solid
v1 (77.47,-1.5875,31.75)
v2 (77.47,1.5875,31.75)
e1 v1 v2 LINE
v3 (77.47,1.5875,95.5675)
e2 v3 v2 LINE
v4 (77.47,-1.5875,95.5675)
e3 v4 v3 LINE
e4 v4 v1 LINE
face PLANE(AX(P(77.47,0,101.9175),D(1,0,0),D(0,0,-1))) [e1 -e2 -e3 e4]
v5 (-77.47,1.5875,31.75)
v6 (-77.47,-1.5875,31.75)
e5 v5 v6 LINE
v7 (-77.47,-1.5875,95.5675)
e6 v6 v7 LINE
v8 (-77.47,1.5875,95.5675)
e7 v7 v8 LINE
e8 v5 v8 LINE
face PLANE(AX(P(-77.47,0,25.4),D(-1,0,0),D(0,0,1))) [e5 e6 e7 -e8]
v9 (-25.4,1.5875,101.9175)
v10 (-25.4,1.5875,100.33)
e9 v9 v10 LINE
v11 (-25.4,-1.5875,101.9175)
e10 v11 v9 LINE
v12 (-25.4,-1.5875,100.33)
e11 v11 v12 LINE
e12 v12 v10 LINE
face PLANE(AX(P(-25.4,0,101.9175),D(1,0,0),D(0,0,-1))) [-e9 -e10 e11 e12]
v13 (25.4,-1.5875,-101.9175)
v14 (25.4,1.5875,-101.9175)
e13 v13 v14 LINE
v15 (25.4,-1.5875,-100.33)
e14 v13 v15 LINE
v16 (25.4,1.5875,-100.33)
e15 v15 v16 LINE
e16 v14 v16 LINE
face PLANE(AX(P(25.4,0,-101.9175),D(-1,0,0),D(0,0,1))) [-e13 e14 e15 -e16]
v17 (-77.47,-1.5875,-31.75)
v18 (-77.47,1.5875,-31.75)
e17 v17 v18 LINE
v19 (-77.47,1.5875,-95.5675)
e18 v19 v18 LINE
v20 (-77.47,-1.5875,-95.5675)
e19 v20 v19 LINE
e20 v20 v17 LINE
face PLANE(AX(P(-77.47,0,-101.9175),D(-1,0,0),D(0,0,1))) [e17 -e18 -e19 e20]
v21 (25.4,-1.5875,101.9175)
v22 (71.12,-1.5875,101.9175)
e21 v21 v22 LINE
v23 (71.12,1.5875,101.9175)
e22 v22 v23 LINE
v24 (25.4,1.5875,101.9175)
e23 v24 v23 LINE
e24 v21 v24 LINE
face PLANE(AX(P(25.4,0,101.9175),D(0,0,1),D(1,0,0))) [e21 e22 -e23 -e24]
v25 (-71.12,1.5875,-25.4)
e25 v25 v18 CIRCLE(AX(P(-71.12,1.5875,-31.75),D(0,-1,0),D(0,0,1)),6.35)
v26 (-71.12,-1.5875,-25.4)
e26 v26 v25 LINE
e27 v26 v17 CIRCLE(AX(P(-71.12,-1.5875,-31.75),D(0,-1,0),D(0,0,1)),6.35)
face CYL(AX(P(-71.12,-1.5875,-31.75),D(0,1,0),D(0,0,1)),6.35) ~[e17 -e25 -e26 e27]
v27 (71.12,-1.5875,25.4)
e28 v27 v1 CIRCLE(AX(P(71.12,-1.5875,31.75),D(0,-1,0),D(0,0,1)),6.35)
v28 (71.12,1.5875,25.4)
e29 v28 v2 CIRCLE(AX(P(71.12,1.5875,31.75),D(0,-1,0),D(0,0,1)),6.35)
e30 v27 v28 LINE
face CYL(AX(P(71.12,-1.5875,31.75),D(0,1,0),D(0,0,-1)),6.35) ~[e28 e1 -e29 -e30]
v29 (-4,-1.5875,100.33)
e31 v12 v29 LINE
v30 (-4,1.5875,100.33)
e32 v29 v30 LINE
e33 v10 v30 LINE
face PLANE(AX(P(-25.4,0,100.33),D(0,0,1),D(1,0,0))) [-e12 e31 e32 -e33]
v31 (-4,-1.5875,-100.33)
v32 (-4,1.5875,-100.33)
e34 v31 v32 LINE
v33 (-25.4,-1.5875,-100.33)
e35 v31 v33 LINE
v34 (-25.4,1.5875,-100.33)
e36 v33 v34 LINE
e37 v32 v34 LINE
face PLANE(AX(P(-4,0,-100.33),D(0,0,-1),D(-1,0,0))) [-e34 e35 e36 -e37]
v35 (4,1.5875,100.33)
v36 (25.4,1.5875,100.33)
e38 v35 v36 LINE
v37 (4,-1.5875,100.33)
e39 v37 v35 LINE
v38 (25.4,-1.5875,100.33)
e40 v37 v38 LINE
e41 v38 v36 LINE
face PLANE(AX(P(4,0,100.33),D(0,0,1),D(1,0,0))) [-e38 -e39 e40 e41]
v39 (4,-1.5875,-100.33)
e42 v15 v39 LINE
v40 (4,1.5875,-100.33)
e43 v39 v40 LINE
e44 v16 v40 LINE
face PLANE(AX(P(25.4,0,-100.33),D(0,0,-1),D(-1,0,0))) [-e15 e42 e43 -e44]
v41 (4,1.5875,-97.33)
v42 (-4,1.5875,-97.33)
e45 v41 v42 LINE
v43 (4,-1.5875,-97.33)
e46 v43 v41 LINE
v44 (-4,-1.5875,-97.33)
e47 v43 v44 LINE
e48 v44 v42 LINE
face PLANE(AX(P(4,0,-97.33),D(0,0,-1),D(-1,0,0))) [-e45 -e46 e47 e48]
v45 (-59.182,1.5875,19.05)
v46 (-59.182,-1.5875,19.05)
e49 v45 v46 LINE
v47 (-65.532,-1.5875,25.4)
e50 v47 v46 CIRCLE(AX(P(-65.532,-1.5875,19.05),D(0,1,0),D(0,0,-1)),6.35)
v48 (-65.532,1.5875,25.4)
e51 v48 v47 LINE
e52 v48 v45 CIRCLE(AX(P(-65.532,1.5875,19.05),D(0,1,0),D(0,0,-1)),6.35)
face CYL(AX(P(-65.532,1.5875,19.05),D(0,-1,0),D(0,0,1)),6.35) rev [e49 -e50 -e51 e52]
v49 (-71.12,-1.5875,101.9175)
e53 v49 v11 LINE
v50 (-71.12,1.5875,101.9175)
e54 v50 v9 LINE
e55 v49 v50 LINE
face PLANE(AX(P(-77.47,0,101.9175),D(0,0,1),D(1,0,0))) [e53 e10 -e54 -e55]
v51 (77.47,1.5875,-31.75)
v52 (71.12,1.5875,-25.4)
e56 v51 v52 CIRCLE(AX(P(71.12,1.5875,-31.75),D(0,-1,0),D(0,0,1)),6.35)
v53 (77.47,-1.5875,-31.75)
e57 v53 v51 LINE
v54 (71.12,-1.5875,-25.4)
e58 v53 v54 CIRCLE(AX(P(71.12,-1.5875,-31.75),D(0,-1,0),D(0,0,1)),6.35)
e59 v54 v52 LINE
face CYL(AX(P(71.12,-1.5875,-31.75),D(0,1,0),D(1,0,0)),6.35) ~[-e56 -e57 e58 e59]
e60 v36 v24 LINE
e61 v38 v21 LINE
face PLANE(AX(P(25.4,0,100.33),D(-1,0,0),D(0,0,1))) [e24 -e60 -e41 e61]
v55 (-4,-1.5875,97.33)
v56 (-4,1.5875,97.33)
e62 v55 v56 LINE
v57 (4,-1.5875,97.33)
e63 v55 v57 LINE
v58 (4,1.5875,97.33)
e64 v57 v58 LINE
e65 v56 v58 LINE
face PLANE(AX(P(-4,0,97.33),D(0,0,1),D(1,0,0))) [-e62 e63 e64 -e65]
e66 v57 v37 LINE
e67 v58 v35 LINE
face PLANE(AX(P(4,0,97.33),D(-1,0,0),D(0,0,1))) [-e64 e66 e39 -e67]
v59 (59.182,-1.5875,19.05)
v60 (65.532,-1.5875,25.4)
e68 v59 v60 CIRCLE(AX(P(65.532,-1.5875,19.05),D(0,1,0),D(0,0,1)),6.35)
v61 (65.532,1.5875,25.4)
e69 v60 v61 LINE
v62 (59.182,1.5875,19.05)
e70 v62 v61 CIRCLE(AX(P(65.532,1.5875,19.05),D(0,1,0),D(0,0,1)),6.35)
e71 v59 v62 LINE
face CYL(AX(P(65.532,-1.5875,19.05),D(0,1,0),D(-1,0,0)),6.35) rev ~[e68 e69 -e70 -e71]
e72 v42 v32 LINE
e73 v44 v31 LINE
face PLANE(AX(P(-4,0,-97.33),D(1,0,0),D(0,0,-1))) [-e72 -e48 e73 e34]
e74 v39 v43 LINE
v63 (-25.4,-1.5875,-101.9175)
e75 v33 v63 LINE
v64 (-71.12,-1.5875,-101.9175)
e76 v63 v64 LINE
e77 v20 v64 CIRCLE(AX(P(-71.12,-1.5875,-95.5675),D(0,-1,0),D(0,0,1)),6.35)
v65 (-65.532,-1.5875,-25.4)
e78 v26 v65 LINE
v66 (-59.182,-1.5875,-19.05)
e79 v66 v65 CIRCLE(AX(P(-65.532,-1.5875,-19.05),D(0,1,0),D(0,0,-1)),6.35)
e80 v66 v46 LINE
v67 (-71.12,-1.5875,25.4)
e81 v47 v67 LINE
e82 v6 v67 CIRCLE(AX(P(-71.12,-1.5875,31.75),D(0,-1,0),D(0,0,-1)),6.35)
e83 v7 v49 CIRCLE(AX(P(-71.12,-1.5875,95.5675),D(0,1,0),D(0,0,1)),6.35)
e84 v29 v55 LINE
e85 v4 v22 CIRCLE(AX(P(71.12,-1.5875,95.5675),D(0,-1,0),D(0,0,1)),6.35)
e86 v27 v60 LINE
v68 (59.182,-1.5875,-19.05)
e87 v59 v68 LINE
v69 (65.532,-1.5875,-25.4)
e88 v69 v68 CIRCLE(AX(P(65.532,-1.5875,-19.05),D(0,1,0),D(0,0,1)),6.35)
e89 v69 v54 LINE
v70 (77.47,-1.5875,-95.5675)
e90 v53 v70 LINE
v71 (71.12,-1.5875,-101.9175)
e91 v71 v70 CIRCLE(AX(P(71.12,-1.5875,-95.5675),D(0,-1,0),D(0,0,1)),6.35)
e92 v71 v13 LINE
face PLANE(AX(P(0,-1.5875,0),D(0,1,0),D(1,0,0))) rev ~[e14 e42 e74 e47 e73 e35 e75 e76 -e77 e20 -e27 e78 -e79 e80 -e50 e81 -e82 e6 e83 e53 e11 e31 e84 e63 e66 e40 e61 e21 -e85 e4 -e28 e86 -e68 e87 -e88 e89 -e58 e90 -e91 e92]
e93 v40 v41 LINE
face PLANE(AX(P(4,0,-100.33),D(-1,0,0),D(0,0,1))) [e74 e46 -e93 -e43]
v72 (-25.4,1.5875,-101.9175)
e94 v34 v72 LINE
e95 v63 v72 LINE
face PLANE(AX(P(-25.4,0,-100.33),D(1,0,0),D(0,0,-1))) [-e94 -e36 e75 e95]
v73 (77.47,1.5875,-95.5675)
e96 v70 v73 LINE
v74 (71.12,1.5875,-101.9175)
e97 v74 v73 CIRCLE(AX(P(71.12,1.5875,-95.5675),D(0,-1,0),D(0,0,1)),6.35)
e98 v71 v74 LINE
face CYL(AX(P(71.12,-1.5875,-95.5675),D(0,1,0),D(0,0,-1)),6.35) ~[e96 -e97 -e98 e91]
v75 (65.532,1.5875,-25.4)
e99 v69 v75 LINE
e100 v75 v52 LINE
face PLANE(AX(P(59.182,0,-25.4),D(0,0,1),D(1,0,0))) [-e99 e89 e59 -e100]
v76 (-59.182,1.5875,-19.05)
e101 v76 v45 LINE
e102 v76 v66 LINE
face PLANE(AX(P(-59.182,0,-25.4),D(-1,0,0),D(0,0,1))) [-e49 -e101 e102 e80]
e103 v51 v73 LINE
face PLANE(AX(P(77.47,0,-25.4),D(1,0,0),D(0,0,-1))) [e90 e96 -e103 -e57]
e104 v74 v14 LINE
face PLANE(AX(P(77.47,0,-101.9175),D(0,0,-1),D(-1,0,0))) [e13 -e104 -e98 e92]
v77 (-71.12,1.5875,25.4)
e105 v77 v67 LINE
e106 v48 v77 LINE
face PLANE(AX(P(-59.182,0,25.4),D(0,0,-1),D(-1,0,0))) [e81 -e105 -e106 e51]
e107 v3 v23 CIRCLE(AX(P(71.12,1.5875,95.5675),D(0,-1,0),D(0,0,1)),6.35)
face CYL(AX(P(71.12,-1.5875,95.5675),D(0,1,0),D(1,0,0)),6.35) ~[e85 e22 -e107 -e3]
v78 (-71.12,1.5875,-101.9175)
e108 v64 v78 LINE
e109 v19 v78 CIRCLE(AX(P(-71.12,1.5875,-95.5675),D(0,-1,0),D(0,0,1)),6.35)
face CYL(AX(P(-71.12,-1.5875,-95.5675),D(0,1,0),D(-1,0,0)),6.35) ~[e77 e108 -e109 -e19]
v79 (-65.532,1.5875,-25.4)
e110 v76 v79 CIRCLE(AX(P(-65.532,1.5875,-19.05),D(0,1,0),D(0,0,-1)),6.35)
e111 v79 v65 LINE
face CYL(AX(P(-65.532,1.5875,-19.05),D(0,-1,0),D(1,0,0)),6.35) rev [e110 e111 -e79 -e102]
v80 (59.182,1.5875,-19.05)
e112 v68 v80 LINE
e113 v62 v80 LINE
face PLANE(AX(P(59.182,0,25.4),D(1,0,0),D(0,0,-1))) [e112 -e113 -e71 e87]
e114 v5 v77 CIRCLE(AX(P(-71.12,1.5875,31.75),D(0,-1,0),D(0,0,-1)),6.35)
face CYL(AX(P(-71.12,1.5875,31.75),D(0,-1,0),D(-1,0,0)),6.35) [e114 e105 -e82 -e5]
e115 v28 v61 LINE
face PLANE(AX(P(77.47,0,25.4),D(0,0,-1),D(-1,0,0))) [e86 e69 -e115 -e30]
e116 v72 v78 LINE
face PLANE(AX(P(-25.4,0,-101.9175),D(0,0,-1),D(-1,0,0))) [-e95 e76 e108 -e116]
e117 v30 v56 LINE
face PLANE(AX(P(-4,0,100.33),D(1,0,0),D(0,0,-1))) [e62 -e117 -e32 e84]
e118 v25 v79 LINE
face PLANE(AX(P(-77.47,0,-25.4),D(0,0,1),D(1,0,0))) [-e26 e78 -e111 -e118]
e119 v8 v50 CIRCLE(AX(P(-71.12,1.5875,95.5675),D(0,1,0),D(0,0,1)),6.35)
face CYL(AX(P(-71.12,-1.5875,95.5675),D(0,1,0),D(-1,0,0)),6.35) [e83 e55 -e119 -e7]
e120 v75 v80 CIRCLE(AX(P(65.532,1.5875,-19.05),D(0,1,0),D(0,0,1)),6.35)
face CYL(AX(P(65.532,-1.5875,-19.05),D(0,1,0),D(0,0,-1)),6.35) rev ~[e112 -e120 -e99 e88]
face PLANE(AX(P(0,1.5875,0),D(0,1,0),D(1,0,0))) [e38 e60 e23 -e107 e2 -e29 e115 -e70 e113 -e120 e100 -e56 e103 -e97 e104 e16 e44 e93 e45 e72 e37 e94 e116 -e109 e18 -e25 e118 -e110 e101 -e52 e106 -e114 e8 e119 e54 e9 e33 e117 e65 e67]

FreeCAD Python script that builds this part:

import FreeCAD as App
import Part
import Sketcher

V = App.Vector
Q = App.Units.Quantity


def edges_at(feature, points):
    """Names of the edges that pass closest to the given points."""
    edges = feature.Shape.Edges
    near = lambda p: min(range(len(edges)), key=lambda i: edges[i].distToShape(Part.Vertex(*p))[0])
    return sorted({f"Edge{near(p) + 1}" for p in points})


def add_polygon(sketch, points):
    """Adds a closed chain of lines whose ends are joined by coincident constraints."""
    first, n = sketch.GeometryCount, len(points)
    for a, b in zip(points, points[1:] + points[:1]):
        sketch.addGeometry(Part.LineSegment(App.Vector(*a, 0), App.Vector(*b, 0)), False)
    for i in range(n):
        sketch.addConstraint(Sketcher.Constraint("Coincident", first + i, 2, first + (i + 1) % n, 1))

doc = App.newDocument("Part")
body = doc.addObject("PartDesign::Body", "Body")

# Sketch on XZ plane
sketch1 = body.newObject("Sketcher::SketchObject", "Sketch")
sketch1.AttachmentSupport = (doc.getObject("XZ_Plane"), [""])
sketch1.MapMode = "FlatFace"
add_polygon(sketch1, [(-77.5, 25.4), (-77.5, 101.9), (-25.4, 101.9), (-25.4, 100.3), (-4, 100.3), (-4, 97.3), (4, 97.3), (4, 100.3), (25.4, 100.3), (25.4, 101.9), (77.5, 101.9), (77.5, 25.4), (59.2, 25.4), (59.2, -25.4), (77.5, -25.4), (77.5, -101.9), (25.4, -101.9), (25.4, -100.3), (4, -100.3), (4, -97.3), (-4, -97.3), (-4, -100.3), (-25.4, -100.3), (-25.4, -101.9), (-77.5, -101.9), (-77.5, -25.4), (-59.2, -25.4), (-59.2, 25.4)])  # lines 0-27
sketch1.addConstraint([
    Sketcher.Constraint("Vertical", 0),
    Sketcher.Constraint("Horizontal", 1),
    Sketcher.Constraint("Vertical", 2),
    Sketcher.Constraint("Horizontal", 3),
    Sketcher.Constraint("Vertical", 4),
    Sketcher.Constraint("Horizontal", 5),
    Sketcher.Constraint("Vertical", 6),
    Sketcher.Constraint("Horizontal", 7),
    Sketcher.Constraint("Vertical", 8),
    Sketcher.Constraint("Horizontal", 9),
    Sketcher.Constraint("Vertical", 10),
    Sketcher.Constraint("Horizontal", 11),
    Sketcher.Constraint("Vertical", 12),
    Sketcher.Constraint("Horizontal", 13),
    Sketcher.Constraint("Vertical", 14),
    Sketcher.Constraint("Horizontal", 15),
    Sketcher.Constraint("Vertical", 16),
    Sketcher.Constraint("Horizontal", 17),
    Sketcher.Constraint("Vertical", 18),
    Sketcher.Constraint("Horizontal", 19),
    Sketcher.Constraint("Vertical", 20),
    Sketcher.Constraint("Horizontal", 21),
    Sketcher.Constraint("Vertical", 22),
    Sketcher.Constraint("Horizontal", 23),
    Sketcher.Constraint("Vertical", 24),
    Sketcher.Constraint("Horizontal", 25),
    Sketcher.Constraint("Vertical", 26),
    Sketcher.Constraint("Horizontal", 27),
    Sketcher.Constraint("Symmetric", 0, 2, 14, 2, -1, 1),
    Sketcher.Constraint("Symmetric", 2, 2, 16, 2, -1, 1),
    Sketcher.Constraint("Symmetric", 4, 2, 18, 2, -1, 1),
    Sketcher.Constraint("Symmetric", 6, 2, 20, 2, -1, 1),
    Sketcher.Constraint("Symmetric", 8, 2, 22, 2, -1, 1),
    Sketcher.Constraint("Symmetric", 10, 2, 24, 2, -1, 1),
    Sketcher.Constraint("Symmetric", 12, 2, 26, 2, -1, 1),
    Sketcher.Constraint("Symmetric", 3, 2, 6, 2, -2),
    Sketcher.Constraint("Symmetric", 1, 2, 8, 2, -2),
    Sketcher.Constraint("Symmetric", 13, 2, 24, 2, -2),
    Sketcher.Constraint("DistanceY", 12, 2, 12, 1, Q("2 in")),
    Sketcher.Constraint("DistanceX", 1, 2, -1, 1, Q("1 in")),
    Sketcher.Constraint("DistanceX", 1, 1, 1, 2, Q("2.05 in")),
    Sketcher.Constraint("DistanceX", 11, 2, 11, 1, Q("0.72 in")),
    Sketcher.Constraint("DistanceY", 2, 2, 2, 1, Q("0.0625 in")),
    Sketcher.Constraint("DistanceY", -1, 1, 2, 2, Q("3.95 in")),
    Sketcher.Constraint("DistanceX", 3, 1, 3, 2, 21.4),
    Sketcher.Constraint("DistanceY", 4, 2, 4, 1, 3.0),
])
pad1 = body.newObject("PartDesign::Pad", "Pad")
pad1.Profile = sketch1
pad1.Length = Q("0.125 in")
pad1.Midplane = True
doc.recompute()

fillet = body.newObject("PartDesign::Fillet", "Fillet")
fillet.Base = (pad1, edges_at(pad1, [
    (-77.47, 0, -101.918),
    (77.47, 0, -101.918),
    (77.47, 0, -25.4),
    (59.182, 0, -25.4),
    (59.182, 0, 25.4),
    (77.47, 0, 25.4),
    (77.47, 0, 101.918),
    (-77.47, 0, 101.918),
    (-77.47, 0, 25.4),
    (-59.182, 0, 25.4),
    (-59.182, 0, -25.4),
    (-77.47, 0, -25.4),
]))
fillet.Radius = Q("0.25 in")

doc.recompute()
